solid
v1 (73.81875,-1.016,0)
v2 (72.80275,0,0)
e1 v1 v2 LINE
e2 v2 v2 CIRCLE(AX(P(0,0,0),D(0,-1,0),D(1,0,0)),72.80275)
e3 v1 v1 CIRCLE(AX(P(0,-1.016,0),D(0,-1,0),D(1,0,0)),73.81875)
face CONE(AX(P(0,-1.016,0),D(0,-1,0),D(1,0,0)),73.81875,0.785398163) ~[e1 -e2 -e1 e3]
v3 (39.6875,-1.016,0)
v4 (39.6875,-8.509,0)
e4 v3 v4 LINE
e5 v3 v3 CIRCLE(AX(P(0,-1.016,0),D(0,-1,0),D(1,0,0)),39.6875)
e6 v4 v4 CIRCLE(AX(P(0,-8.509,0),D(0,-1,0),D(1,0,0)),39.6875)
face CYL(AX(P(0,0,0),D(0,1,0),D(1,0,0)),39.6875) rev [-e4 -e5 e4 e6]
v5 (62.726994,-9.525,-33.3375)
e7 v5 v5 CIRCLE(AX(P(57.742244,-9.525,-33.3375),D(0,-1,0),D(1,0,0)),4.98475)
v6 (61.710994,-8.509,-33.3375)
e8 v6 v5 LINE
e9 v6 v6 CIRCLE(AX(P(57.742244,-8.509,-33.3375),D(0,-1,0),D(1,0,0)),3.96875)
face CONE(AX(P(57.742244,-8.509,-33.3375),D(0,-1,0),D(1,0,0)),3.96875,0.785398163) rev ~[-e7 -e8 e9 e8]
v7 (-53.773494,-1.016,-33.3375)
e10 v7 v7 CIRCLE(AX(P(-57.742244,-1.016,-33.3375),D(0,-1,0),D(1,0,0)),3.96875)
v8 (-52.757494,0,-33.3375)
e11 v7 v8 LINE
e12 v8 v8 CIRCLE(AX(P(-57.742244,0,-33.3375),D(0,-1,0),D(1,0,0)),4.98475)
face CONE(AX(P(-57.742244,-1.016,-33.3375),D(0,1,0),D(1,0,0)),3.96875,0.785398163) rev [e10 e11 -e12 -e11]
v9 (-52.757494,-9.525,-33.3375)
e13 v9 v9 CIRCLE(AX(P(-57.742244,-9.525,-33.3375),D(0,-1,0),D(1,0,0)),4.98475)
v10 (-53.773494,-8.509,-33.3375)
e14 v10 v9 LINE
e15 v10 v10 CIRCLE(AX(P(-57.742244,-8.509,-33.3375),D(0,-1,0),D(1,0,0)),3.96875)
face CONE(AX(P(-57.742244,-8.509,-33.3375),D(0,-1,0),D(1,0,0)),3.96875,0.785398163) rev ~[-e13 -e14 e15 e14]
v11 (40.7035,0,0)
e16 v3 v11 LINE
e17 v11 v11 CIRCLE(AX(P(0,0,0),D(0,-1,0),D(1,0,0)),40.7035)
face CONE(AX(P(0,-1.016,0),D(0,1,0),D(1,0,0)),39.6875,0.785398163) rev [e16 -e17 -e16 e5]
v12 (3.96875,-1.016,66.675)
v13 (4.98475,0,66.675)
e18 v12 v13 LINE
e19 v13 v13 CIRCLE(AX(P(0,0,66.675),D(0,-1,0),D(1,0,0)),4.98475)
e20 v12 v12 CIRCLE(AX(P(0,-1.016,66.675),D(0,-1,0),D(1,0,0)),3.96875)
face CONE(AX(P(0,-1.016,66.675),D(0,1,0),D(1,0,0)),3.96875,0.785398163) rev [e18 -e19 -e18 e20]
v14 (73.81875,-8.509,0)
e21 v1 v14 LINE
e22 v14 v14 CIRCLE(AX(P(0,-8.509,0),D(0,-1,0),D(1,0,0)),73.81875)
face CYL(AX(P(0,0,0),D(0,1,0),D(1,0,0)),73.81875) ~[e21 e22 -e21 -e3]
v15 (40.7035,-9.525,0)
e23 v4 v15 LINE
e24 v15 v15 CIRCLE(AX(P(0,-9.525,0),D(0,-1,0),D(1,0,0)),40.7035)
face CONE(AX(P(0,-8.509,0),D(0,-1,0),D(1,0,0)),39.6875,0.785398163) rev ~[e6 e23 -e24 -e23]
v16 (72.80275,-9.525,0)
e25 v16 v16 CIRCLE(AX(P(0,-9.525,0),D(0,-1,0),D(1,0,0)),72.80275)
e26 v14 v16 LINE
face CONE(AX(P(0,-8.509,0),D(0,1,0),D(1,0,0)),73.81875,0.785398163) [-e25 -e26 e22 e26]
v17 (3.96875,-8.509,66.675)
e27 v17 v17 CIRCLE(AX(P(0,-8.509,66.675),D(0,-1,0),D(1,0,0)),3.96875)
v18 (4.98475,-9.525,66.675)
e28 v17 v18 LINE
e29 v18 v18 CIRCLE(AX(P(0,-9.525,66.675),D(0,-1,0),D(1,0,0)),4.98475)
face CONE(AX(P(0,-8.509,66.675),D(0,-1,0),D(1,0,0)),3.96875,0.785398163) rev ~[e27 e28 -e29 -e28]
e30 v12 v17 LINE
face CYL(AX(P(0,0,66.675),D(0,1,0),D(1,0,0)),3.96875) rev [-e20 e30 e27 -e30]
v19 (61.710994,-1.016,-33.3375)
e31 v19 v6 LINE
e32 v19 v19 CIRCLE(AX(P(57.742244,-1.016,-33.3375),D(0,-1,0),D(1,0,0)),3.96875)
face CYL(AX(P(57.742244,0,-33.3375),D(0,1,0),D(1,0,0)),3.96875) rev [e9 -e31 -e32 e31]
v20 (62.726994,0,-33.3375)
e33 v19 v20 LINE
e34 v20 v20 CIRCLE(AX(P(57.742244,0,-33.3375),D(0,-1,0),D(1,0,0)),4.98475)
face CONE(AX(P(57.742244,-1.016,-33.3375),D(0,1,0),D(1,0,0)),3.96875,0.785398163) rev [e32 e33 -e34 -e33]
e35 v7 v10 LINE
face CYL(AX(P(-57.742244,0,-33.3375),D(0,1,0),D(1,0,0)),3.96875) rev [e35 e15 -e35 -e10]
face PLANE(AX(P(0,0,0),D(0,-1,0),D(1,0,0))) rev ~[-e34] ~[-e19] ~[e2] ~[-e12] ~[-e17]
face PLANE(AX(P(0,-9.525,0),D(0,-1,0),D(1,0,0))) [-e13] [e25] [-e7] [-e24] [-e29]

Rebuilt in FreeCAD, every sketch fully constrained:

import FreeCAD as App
import Part
import Sketcher
Q = App.Units.Quantity


def edges_at(feature, points):
    """Names of the edges that pass closest to the given points."""
    edges = feature.Shape.Edges
    near = lambda p: min(range(len(edges)), key=lambda i: edges[i].distToShape(Part.Vertex(*p))[0])
    return sorted({f"Edge{near(p) + 1}" for p in points})

doc = App.newDocument("Part")
body = doc.addObject("PartDesign::Body", "Body")

# Sketch on XZ plane
sketch1 = body.newObject("Sketcher::SketchObject", "Sketch")
sketch1.AttachmentSupport = (doc.getObject("XZ_Plane"), [""])
sketch1.MapMode = "FlatFace"
sketch1.addGeometry([
    Part.Circle(App.Vector(0, 0, 0), App.Vector(0, 0, 1), 73.81875),  # 0
    Part.Circle(App.Vector(-57.742244, -33.3375, 0), App.Vector(0, 0, 1), 3.96875),  # 1
    Part.Circle(App.Vector(57.742244, -33.3375, 0), App.Vector(0, 0, 1), 3.96875),  # 2
    Part.Circle(App.Vector(0, 0, 0), App.Vector(0, 0, 1), 39.6875),  # 3
    Part.Circle(App.Vector(0, 66.675, 0), App.Vector(0, 0, 1), 3.96875),  # 4
], False)
sketch1.addConstraint([
    Sketcher.Constraint("Coincident", 0, 3, -1, 1),
    Sketcher.Constraint("Coincident", 3, 3, -1, 1),
    Sketcher.Constraint("Equal", 1, 2),
    Sketcher.Constraint("Equal", 2, 4),
    Sketcher.Constraint("Symmetric", 1, 3, 2, 3, -2),
    Sketcher.Constraint("PointOnObject", 4, 3, -2),
    Sketcher.Constraint("Diameter", 0, Q("5.8125 in")),
    Sketcher.Constraint("Diameter", 1, Q("0.3125 in")),
    Sketcher.Constraint("Diameter", 3, Q("3.125 in")),
    Sketcher.Constraint("DistanceY", 1, 3, -1, 1, Q("1.3125 in")),
    Sketcher.Constraint("DistanceY", -1, 1, 4, 3, Q("2.625 in")),
    Sketcher.Constraint("DistanceX", 1, 3, 2, 3, Q("115.484488 mm")),
])
pad1 = body.newObject("PartDesign::Pad", "Pad")
pad1.Profile = sketch1
pad1.Length = Q("0.375 in")
doc.recompute()

chamfer = body.newObject("PartDesign::Chamfer", "Chamfer")
chamfer.Base = (pad1, edges_at(pad1, [
    (-73.819, -9.525, 0),
    (-61.711, -9.525, -33.337),
    (53.773, -9.525, -33.337),
    (-39.688, -9.525, 0),
    (-3.969, -9.525, 66.675),
    (-73.819, 0, 0),
    (-61.711, 0, -33.337),
    (53.773, 0, -33.337),
    (-39.688, 0, 0),
    (-3.969, 0, 66.675),
]))
chamfer.Size = Q("0.04 in")

doc.recompute()
